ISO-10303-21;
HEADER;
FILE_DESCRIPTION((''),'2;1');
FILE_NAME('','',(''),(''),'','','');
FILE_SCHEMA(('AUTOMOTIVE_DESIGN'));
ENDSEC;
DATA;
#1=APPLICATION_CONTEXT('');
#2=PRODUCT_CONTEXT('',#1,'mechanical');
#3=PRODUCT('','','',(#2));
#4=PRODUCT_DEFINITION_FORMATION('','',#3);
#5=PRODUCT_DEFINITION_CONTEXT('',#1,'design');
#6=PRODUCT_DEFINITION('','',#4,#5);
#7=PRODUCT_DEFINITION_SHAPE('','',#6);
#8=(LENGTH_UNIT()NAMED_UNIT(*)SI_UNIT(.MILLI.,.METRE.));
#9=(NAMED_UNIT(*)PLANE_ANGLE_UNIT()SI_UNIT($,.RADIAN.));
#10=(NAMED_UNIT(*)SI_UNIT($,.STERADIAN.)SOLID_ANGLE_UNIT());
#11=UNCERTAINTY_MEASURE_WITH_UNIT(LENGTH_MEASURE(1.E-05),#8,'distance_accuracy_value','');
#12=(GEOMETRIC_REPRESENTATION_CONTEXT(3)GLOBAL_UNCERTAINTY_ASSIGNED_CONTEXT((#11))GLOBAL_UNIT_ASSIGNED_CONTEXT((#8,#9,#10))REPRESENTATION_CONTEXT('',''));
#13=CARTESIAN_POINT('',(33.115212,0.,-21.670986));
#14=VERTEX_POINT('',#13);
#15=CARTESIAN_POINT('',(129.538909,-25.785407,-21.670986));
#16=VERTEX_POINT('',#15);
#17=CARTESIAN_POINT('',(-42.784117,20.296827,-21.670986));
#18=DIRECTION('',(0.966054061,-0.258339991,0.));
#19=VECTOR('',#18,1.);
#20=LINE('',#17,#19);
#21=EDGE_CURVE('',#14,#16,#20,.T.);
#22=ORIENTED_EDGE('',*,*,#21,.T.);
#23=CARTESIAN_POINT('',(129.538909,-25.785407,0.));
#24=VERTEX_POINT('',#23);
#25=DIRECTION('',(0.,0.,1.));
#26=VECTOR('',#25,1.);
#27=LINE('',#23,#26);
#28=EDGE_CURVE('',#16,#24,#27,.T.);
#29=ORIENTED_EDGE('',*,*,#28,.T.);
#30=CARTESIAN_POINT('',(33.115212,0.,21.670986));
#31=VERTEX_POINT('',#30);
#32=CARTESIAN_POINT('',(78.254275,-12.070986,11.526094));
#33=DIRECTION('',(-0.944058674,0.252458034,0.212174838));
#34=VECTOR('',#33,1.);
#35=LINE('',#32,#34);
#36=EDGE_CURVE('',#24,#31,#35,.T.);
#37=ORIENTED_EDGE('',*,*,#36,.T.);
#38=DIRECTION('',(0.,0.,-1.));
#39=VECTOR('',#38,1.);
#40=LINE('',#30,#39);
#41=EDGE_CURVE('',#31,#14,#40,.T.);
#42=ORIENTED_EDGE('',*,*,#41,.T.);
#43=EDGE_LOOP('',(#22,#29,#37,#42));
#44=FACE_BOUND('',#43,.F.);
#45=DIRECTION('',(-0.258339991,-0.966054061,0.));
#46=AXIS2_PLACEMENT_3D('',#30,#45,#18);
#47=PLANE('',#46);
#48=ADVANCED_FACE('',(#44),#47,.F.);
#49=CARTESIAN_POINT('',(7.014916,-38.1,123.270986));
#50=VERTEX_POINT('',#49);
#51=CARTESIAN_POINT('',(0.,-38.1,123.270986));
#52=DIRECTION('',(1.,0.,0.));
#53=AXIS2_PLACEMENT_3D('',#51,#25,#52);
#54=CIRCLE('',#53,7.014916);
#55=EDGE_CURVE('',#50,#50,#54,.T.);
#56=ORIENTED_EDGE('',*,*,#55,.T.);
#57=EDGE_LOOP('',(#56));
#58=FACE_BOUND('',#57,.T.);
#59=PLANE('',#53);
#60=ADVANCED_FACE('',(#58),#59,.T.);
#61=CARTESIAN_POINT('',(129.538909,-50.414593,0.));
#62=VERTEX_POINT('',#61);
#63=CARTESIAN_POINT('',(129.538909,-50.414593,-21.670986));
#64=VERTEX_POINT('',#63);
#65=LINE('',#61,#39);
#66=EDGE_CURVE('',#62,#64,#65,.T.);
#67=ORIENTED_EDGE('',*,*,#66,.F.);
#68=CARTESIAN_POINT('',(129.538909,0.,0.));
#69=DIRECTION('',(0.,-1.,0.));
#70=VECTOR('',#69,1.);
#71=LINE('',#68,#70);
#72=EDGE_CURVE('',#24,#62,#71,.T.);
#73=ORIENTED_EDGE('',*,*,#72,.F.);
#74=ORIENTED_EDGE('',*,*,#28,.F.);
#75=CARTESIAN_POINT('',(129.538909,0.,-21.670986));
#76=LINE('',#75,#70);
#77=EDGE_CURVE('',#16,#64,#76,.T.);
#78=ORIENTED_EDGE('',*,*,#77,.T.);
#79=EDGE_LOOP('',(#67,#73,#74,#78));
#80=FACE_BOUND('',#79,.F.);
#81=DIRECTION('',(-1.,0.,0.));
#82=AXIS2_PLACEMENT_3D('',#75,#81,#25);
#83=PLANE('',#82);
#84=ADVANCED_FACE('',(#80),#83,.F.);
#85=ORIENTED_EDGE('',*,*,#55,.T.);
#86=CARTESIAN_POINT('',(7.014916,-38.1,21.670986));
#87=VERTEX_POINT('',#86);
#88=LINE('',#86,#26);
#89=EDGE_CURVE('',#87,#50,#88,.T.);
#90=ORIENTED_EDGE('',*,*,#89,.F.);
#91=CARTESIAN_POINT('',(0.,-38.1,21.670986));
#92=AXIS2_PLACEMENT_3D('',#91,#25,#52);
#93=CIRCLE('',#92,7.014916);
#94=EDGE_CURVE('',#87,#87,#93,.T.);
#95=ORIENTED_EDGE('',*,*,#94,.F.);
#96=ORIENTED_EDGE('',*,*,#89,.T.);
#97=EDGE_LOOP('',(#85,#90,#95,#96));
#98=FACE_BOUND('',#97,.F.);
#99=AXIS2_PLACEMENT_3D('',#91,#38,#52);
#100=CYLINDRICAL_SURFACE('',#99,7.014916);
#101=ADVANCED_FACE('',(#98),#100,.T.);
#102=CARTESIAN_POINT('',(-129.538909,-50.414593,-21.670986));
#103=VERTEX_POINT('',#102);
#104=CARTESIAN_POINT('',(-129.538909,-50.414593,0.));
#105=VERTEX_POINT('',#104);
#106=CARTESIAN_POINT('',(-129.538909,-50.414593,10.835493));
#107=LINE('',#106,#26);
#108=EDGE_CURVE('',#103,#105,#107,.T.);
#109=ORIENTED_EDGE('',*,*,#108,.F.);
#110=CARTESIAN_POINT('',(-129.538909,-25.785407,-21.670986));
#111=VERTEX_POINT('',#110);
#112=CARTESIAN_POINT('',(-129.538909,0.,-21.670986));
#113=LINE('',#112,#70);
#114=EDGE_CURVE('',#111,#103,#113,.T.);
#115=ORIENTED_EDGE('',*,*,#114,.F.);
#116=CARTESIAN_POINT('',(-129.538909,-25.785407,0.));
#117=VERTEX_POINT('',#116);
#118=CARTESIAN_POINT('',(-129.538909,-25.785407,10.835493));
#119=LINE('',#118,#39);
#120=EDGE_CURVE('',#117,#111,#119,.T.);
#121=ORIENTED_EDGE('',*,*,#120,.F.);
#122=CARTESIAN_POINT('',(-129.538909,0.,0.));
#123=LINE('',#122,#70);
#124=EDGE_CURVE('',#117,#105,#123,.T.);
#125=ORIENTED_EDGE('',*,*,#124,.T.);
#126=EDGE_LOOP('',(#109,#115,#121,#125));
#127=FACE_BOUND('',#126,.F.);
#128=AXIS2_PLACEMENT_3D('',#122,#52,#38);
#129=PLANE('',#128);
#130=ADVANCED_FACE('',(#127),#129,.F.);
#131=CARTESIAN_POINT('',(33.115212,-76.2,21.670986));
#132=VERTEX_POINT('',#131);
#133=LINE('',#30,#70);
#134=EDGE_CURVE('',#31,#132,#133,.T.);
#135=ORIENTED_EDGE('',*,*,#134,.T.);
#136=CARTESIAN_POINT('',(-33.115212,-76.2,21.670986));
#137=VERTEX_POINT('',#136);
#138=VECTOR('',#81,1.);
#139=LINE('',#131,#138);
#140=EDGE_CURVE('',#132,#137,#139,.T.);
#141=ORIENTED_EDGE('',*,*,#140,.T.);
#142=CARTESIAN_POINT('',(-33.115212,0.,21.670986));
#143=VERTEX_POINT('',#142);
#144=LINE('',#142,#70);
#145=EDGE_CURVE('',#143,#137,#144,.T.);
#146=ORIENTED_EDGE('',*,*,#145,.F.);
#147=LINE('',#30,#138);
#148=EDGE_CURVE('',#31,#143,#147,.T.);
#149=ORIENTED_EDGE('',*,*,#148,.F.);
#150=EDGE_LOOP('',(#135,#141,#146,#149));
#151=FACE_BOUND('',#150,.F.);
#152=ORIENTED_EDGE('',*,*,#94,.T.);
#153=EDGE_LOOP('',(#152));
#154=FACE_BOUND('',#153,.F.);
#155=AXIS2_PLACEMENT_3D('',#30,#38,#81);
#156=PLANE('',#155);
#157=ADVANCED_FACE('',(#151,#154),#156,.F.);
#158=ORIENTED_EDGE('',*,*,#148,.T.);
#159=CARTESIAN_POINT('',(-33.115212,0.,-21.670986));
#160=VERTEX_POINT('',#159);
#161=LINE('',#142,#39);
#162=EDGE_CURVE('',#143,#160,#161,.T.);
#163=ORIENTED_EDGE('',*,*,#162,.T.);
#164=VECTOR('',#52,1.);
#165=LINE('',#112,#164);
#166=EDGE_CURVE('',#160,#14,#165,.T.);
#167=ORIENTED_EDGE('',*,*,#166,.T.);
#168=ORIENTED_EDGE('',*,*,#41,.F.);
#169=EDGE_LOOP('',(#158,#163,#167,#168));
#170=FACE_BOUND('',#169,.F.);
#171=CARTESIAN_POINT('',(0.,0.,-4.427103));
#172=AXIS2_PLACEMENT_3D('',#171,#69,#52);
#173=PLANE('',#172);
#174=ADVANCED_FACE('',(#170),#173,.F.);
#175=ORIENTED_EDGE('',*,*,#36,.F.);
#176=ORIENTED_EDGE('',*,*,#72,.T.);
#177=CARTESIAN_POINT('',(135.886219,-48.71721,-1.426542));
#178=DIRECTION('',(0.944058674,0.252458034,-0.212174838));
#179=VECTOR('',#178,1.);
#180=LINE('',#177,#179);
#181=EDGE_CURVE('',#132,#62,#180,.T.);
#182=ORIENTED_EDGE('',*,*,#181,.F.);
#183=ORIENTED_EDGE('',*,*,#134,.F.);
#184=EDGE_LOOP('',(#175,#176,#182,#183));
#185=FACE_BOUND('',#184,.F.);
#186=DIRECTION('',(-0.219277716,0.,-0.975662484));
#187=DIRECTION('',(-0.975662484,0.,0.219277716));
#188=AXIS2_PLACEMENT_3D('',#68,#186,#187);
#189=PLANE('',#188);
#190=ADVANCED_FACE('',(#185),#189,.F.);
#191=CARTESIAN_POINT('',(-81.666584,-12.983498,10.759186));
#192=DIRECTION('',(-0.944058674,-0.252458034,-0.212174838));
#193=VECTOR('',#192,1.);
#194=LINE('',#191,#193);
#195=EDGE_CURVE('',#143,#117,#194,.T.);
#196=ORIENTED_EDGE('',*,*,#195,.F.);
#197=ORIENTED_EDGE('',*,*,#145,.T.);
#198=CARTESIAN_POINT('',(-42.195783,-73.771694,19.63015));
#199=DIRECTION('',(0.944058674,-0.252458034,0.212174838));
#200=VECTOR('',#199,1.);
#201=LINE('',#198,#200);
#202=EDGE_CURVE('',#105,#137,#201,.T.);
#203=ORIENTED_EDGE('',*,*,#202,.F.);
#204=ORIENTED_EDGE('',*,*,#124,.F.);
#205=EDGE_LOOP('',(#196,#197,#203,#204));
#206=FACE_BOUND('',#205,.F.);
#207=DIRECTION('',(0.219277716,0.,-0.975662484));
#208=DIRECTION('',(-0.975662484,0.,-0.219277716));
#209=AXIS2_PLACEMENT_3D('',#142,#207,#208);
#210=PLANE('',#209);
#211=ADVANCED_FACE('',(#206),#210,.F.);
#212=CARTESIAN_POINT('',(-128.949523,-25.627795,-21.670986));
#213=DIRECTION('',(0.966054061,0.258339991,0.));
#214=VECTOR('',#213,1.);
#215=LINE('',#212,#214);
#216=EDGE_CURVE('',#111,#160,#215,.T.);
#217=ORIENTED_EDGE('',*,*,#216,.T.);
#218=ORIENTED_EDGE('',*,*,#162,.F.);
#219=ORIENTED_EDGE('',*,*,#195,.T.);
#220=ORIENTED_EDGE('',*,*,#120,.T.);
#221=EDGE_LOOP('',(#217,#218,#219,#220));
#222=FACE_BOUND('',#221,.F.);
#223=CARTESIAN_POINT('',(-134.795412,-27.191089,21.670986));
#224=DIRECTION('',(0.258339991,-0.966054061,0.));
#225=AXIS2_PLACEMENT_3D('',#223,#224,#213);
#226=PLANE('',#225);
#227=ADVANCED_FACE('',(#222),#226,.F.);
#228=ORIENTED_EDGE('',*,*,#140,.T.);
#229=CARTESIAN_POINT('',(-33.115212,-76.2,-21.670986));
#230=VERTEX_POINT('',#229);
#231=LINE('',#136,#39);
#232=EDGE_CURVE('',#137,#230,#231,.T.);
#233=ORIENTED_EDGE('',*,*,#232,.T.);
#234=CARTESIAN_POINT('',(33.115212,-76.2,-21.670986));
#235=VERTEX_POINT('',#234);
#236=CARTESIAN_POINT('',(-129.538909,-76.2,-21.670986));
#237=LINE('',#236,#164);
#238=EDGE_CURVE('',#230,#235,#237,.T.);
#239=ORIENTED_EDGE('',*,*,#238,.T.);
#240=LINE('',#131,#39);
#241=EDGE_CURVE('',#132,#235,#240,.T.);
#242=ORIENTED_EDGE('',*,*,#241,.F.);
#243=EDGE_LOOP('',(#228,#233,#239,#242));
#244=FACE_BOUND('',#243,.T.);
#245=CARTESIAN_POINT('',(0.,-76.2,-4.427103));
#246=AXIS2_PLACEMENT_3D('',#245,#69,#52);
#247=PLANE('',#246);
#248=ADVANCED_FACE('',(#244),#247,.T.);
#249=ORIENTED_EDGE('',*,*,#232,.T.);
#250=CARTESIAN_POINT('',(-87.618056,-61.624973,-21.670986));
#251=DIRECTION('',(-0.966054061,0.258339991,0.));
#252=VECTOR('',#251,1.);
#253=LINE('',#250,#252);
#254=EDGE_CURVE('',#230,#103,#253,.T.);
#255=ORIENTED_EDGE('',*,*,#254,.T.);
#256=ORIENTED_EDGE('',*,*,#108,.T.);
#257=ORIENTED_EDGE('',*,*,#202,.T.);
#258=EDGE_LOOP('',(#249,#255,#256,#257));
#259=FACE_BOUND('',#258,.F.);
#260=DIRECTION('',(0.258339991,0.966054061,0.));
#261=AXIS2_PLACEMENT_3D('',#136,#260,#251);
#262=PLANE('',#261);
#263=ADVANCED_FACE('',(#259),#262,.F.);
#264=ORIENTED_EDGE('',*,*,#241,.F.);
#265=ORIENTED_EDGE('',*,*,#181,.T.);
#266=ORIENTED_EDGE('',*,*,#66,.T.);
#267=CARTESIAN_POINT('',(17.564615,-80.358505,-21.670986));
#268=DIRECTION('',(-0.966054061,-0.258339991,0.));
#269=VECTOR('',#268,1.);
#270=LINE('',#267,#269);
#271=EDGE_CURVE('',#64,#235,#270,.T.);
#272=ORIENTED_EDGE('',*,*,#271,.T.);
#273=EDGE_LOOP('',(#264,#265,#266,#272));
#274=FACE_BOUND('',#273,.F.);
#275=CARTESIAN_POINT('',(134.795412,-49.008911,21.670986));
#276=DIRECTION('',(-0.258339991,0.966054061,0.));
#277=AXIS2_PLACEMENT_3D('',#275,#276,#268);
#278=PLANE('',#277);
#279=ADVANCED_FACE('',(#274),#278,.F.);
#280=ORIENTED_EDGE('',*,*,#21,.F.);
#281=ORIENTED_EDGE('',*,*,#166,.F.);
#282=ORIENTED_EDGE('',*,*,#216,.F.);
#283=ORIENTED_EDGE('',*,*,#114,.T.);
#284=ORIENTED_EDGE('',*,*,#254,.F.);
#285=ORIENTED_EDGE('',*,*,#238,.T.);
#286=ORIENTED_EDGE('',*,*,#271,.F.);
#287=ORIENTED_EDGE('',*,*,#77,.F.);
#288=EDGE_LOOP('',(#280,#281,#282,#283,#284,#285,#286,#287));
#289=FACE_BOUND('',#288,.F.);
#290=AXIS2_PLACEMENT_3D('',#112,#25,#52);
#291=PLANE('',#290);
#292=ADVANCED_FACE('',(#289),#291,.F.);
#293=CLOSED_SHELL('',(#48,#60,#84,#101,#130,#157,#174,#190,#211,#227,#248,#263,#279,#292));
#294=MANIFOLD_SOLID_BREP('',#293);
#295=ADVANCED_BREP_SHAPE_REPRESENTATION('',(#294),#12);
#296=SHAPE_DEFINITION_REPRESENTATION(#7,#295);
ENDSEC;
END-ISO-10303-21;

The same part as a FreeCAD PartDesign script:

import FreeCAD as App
import Part
import Sketcher
from FreeCAD import Vector
Q = App.Units.Quantity

doc = App.newDocument("Part")
params = doc.addObject("Spreadsheet::Sheet", "Params")
for row, (alias, value) in enumerate([
    ("pad1_length", "3 in"),
    ("pad2_length", "4 in"),
    ("pocket1_length", "3 in"),
    ("pocket2_length", "3 in"),
], start=1):
    params.set(f"A{row}", alias)
    params.set(f"B{row}", "=" + value)
    params.setAlias(f"B{row}", alias)

body = doc.addObject("PartDesign::Body", "Body")

sketch1 = body.newObject("Sketcher::SketchObject", "Sketch")
sketch1.AttachmentSupport = (doc.getObject("XZ_Plane"), [""])
sketch1.MapMode = "FlatFace"
sketch1.addGeometry([
    Part.LineSegment(Vector(129.538909, 0, 0), Vector(33.115212, 21.670986, 0)),
    Part.LineSegment(Vector(33.115212, 21.670986, 0), Vector(-33.115212, 21.670986, 0)),
    Part.LineSegment(Vector(-33.115212, 21.670986, 0), Vector(-129.538909, 0, 0)),
    Part.LineSegment(Vector(-129.538909, 0, 0), Vector(-129.538909, -21.670986, 0)),
    Part.LineSegment(Vector(-129.538909, -21.670986, 0), Vector(129.538909, -21.670986, 0)),
    Part.LineSegment(Vector(129.538909, -21.670986, 0), Vector(129.538909, 0, 0)),
], False)
sketch1.addConstraint([
    Sketcher.Constraint("Coincident", 0, 2, 1, 1),
    Sketcher.Constraint("Coincident", 1, 2, 2, 1),
    Sketcher.Constraint("Coincident", 2, 2, 3, 1),
    Sketcher.Constraint("Coincident", 3, 2, 4, 1),
    Sketcher.Constraint("Coincident", 4, 2, 5, 1),
    Sketcher.Constraint("Coincident", 5, 2, 0, 1),
    Sketcher.Constraint("Horizontal", 1),
    Sketcher.Constraint("Vertical", 3),
    Sketcher.Constraint("Horizontal", 4),
    Sketcher.Constraint("Vertical", 5),
    Sketcher.Constraint("Symmetric", 2, 2, 5, 2, -1, 1),
    Sketcher.Constraint("PointOnObject", 2, 2, -1),
    Sketcher.Constraint("Equal", 0, 2),
    Sketcher.Constraint("DistanceX", 4, 1, 4, 2, Q("259.077818 mm")),
    Sketcher.Constraint("Distance", 0, Q("98.828948 mm")),
    Sketcher.Constraint("DistanceX", 1, 2, 1, 1, Q("66.230424 mm")),
    Sketcher.Constraint("DistanceY", 3, 2, 3, 1, Q("21.670986 mm")),
])
pad1 = body.newObject("PartDesign::Pad", "Pad")
pad1.Profile = sketch1
pad1.setExpression("Length", "Params.pad1_length")

sketch2 = body.newObject("Sketcher::SketchObject", "Sketch001")
sketch2.AttachmentSupport = (doc.getObject("XY_Plane"), [""])
sketch2.MapMode = "FlatFace"
sketch2.AttachmentOffset = App.Placement(Vector(0, 0, 21.670986), App.Rotation())
sketch2.addGeometry(Part.Circle(Vector(0, -38.1, 0), Vector(0, 0, 1), 7.014916), False)
sketch2.addConstraint([
    Sketcher.Constraint("PointOnObject", 0, 3, -2),
    Sketcher.Constraint("DistanceY", 0, 3, -1, 1, Q("1.5 in")),
    Sketcher.Constraint("Diameter", 0, Q("14.029832 mm")),
])
pad2 = body.newObject("PartDesign::Pad", "Pad001")
pad2.Profile = sketch2
pad2.setExpression("Length", "Params.pad2_length")

sketch3 = body.newObject("Sketcher::SketchObject", "Sketch002")
sketch3.AttachmentSupport = (doc.getObject("XY_Plane"), [""])
sketch3.MapMode = "FlatFace"
sketch3.AttachmentOffset = App.Placement(Vector(0, 0, 21.670986), App.Rotation())
sketch3.addGeometry([
    Part.LineSegment(Vector(134.795412, 6.28761, 0), Vector(33.115212, 0, 0)),
    Part.LineSegment(Vector(33.115212, 0, 0), Vector(134.795412, -27.191089, 0)),
    Part.LineSegment(Vector(134.795412, -27.191089, 0), Vector(134.795412, 6.28761, 0)),
], False)
sketch3.addConstraint([
    Sketcher.Constraint("Coincident", 0, 2, 1, 1),
    Sketcher.Constraint("Coincident", 1, 2, 2, 1),
    Sketcher.Constraint("Coincident", 2, 2, 0, 1),
    Sketcher.Constraint("Vertical", 2),
    Sketcher.Constraint("PointOnObject", 0, 2, -1),
    Sketcher.Constraint("DistanceY", 2, 1, 2, 2, Q("33.478699 mm")),
    Sketcher.Constraint("DistanceX", 0, 2, 1, 2, Q("101.6802 mm")),
    Sketcher.Constraint("Distance", 0, Q("101.874418 mm")),
    Sketcher.Constraint("DistanceX", -1, 1, 1, 2, Q("134.795412 mm")),
])
pocket1 = body.newObject("PartDesign::Pocket", "Pocket")
pocket1.Profile = sketch3
pocket1.setExpression("Length", "Params.pocket1_length")

sketch4 = body.newObject("Sketcher::SketchObject", "Sketch003")
sketch4.AttachmentSupport = (doc.getObject("XY_Plane"), [""])
sketch4.MapMode = "FlatFace"
sketch4.AttachmentOffset = App.Placement(Vector(0, 0, 21.670986), App.Rotation())
sketch4.addGeometry([
    Part.LineSegment(Vector(134.795412, 6.28761, 0), Vector(33.115212, 0, 0)),
    Part.LineSegment(Vector(33.115212, 0, 0), Vector(134.795412, -27.191089, 0)),
    Part.LineSegment(Vector(134.795412, -27.191089, 0), Vector(134.795412, 6.28761, 0)),
    Part.LineSegment(Vector(-134.795412, -27.191089, 0), Vector(-33.115212, 0, 0)),
    Part.LineSegment(Vector(-33.115212, 0, 0), Vector(-134.795412, 6.28761, 0)),
    Part.LineSegment(Vector(-134.795412, 6.28761, 0), Vector(-134.795412, -27.191089, 0)),
    Part.LineSegment(Vector(134.795412, -49.008911, 0), Vector(33.115212, -76.2, 0)),
    Part.LineSegment(Vector(33.115212, -76.2, 0), Vector(134.795412, -82.48761, 0)),
    Part.LineSegment(Vector(134.795412, -82.48761, 0), Vector(134.795412, -49.008911, 0)),
    Part.LineSegment(Vector(-134.795412, -82.48761, 0), Vector(-33.115212, -76.2, 0)),
    Part.LineSegment(Vector(-33.115212, -76.2, 0), Vector(-134.795412, -49.008911, 0)),
    Part.LineSegment(Vector(-134.795412, -49.008911, 0), Vector(-134.795412, -82.48761, 0)),
], False)
sketch4.addConstraint([
    Sketcher.Constraint("Coincident", 0, 2, 1, 1),
    Sketcher.Constraint("Coincident", 1, 2, 2, 1),
    Sketcher.Constraint("Coincident", 2, 2, 0, 1),
    Sketcher.Constraint("Coincident", 3, 2, 4, 1),
    Sketcher.Constraint("Coincident", 4, 2, 5, 1),
    Sketcher.Constraint("Coincident", 5, 2, 3, 1),
    Sketcher.Constraint("Coincident", 6, 2, 7, 1),
    Sketcher.Constraint("Coincident", 7, 2, 8, 1),
    Sketcher.Constraint("Coincident", 8, 2, 6, 1),
    Sketcher.Constraint("Coincident", 9, 2, 10, 1),
    Sketcher.Constraint("Coincident", 10, 2, 11, 1),
    Sketcher.Constraint("Coincident", 11, 2, 9, 1),
    Sketcher.Constraint("Vertical", 2),
    Sketcher.Constraint("Vertical", 5),
    Sketcher.Constraint("Vertical", 8),
    Sketcher.Constraint("Vertical", 11),
    Sketcher.Constraint("Symmetric", 0, 2, 3, 2, -1, 1),
    Sketcher.Constraint("Symmetric", 2, 2, 4, 2, -2),
    Sketcher.Constraint("Symmetric", 6, 2, 9, 2, -2),
    Sketcher.Constraint("Symmetric", 8, 2, 10, 2, -2),
    Sketcher.Constraint("PointOnObject", 0, 2, -1),
    Sketcher.Constraint("Parallel", 3, 6),
    Sketcher.Constraint("Parallel", 4, 7),
    Sketcher.Constraint("Parallel", 0, 9),
    Sketcher.Constraint("Parallel", 1, 10),
    Sketcher.Constraint("Vertical", 0, 2, 6, 2),
    Sketcher.Constraint("Vertical", 2, 2, 7, 2),
    Sketcher.Constraint("DistanceY", 6, 2, -1, 1, Q("3 in")),
    Sketcher.Constraint("DistanceY", 2, 1, 2, 2, Q("33.478699 mm")),
    Sketcher.Constraint("DistanceX", 0, 2, 1, 2, Q("101.6802 mm")),
    Sketcher.Constraint("Distance", 0, Q("101.874418 mm")),
    Sketcher.Constraint("DistanceX", -1, 1, 1, 2, Q("134.795412 mm")),
])
pocket2 = body.newObject("PartDesign::Pocket", "Pocket001")
pocket2.Profile = sketch4
pocket2.setExpression("Length", "Params.pocket2_length")

doc.recompute()
